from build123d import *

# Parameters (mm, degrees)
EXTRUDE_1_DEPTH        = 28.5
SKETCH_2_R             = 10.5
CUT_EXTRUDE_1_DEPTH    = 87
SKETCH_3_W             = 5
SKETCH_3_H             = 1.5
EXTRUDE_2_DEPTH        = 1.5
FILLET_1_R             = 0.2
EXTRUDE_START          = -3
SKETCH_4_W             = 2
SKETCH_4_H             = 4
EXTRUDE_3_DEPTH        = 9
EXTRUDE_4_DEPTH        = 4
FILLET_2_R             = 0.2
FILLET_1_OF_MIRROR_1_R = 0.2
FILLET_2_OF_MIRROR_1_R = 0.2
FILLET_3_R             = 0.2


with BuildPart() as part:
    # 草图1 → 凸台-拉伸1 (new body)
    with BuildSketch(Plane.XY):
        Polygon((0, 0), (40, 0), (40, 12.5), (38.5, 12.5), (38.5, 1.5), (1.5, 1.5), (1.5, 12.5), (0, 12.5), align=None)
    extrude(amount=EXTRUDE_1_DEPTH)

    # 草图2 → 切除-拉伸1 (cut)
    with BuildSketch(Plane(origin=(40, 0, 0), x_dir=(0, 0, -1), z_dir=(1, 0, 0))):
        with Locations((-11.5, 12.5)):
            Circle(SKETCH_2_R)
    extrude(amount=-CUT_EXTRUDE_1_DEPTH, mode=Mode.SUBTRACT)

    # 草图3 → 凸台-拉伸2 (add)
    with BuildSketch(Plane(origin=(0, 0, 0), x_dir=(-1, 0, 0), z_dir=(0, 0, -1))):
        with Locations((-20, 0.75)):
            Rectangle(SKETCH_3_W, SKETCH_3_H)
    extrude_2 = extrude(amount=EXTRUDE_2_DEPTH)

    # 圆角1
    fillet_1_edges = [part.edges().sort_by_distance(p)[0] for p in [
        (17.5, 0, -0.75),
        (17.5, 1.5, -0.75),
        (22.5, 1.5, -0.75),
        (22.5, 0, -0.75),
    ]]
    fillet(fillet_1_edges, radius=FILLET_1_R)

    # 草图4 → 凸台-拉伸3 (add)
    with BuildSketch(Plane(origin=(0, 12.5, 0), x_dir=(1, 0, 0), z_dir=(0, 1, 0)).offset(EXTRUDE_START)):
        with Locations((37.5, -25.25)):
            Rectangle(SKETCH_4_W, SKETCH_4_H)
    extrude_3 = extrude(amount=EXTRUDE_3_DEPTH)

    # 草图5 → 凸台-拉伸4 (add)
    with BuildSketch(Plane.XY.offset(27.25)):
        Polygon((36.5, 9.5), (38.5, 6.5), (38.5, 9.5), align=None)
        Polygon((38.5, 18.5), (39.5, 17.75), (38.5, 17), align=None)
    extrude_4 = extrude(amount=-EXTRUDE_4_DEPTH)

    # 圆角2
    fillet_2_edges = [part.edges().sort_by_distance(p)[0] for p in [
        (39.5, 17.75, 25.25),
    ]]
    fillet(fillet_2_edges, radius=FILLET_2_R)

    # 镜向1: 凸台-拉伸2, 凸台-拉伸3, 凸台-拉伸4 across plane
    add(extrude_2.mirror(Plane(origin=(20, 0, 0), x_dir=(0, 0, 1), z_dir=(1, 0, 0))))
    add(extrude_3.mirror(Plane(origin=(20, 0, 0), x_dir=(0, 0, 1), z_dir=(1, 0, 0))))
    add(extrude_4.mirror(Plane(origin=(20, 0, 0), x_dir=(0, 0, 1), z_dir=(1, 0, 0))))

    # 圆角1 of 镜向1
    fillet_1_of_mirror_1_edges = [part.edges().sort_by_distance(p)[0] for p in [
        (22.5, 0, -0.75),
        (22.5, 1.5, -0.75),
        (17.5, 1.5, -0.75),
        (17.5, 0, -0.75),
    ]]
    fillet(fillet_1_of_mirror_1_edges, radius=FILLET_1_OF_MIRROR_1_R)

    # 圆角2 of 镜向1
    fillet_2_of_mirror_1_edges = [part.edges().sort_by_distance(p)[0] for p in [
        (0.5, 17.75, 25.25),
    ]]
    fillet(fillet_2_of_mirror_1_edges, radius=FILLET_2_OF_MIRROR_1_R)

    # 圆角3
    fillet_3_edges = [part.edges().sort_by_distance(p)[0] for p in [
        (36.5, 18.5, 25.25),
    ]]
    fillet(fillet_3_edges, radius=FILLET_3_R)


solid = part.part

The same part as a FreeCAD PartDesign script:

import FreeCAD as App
import Part
import Sketcher

V = App.Vector
Q = App.Units.Quantity


def edges_at(feature, points):
    """Names of the edges that pass closest to the given points."""
    edges = feature.Shape.Edges
    near = lambda p: min(range(len(edges)), key=lambda i: edges[i].distToShape(Part.Vertex(*p))[0])
    return sorted({f"Edge{near(p) + 1}" for p in points})

doc = App.newDocument("Part")
body = doc.addObject("PartDesign::Body", "Body")

# Sketch on XY plane
sketch1 = body.newObject("Sketcher::SketchObject", "Sketch")
sketch1.AttachmentSupport = (doc.getObject("XY_Plane"), [""])
sketch1.MapMode = "FlatFace"
sketch1.addGeometry([
    Part.LineSegment(V(0, 0, 0), V(40, 0, 0)),  # 0
    Part.LineSegment(V(40, 0, 0), V(40, 12.5, 0)),  # 1
    Part.LineSegment(V(40, 12.5, 0), V(38.5, 12.5, 0)),  # 2
    Part.LineSegment(V(38.5, 12.5, 0), V(38.5, 1.5, 0)),  # 3
    Part.LineSegment(V(38.5, 1.5, 0), V(1.5, 1.5, 0)),  # 4
    Part.LineSegment(V(1.5, 1.5, 0), V(1.5, 12.5, 0)),  # 5
    Part.LineSegment(V(1.5, 12.5, 0), V(0, 12.5, 0)),  # 6
    Part.LineSegment(V(0, 12.5, 0), V(0, 0, 0)),  # 7
], False)
sketch1.addConstraint([
    Sketcher.Constraint("Coincident", 0, 2, 1, 1),
    Sketcher.Constraint("Coincident", 1, 2, 2, 1),
    Sketcher.Constraint("Coincident", 2, 2, 3, 1),
    Sketcher.Constraint("Coincident", 3, 2, 4, 1),
    Sketcher.Constraint("Coincident", 4, 2, 5, 1),
    Sketcher.Constraint("Coincident", 5, 2, 6, 1),
    Sketcher.Constraint("Coincident", 6, 2, 7, 1),
    Sketcher.Constraint("Coincident", 7, 2, 0, 1),
    Sketcher.Constraint("Horizontal", 0),
    Sketcher.Constraint("Vertical", 1),
    Sketcher.Constraint("Horizontal", 2),
    Sketcher.Constraint("Vertical", 3),
    Sketcher.Constraint("Horizontal", 4),
    Sketcher.Constraint("Vertical", 5),
    Sketcher.Constraint("Horizontal", 6),
    Sketcher.Constraint("Vertical", 7),
    Sketcher.Constraint("Coincident", 7, 2, -1, 1),
    Sketcher.Constraint("Horizontal", 2, 2, 5, 2),
    Sketcher.Constraint("Equal", 2, 6),
    Sketcher.Constraint("DistanceX", 0, 1, 0, 2, Q("40 mm")),
    Sketcher.Constraint("DistanceX", 4, 2, 4, 1, Q("37 mm")),
    Sketcher.Constraint("DistanceY", 3, 2, 3, 1, Q("11 mm")),
    Sketcher.Constraint("DistanceY", 1, 1, 1, 2, Q("12.5 mm")),
])
pad1 = body.newObject("PartDesign::Pad", "Pad")
pad1.Profile = sketch1
pad1.Length = 28.5

# Sketch on YZ plane
sketch2 = body.newObject("Sketcher::SketchObject", "Sketch001")
sketch2.AttachmentSupport = (doc.getObject("YZ_Plane"), [""])
sketch2.MapMode = "FlatFace"
sketch2.AttachmentOffset = App.Placement(V(0, 0, 40), App.Rotation())
sketch2.addGeometry(Part.Circle(V(12.5, 11.5, 0), V(0, 0, 1), 10.5), False)
sketch2.addConstraint([
    Sketcher.Constraint("Diameter", 0, Q("21 mm")),
    Sketcher.Constraint("DistanceX", -1, 1, 0, 3, Q("12.5 mm")),
    Sketcher.Constraint("DistanceY", -1, 1, 0, 3, Q("11.5 mm")),
])
pocket1 = body.newObject("PartDesign::Pocket", "Pocket")
pocket1.Profile = sketch2
pocket1.Length = 87

# Sketch on XY plane
sketch3 = body.newObject("Sketcher::SketchObject", "Sketch002")
sketch3.AttachmentSupport = (doc.getObject("XY_Plane"), [""])
sketch3.MapMode = "FlatFace"
sketch3.addGeometry([
    Part.LineSegment(V(22.5, 1.5, 0), V(22.5, 0, 0)),
    Part.LineSegment(V(22.5, 0, 0), V(17.5, 0, 0)),
    Part.LineSegment(V(17.5, 0, 0), V(17.5, 1.5, 0)),
    Part.LineSegment(V(17.5, 1.5, 0), V(22.5, 1.5, 0)),
], False)
sketch3.addConstraint([
    Sketcher.Constraint("Coincident", 0, 2, 1, 1),
    Sketcher.Constraint("Coincident", 1, 2, 2, 1),
    Sketcher.Constraint("Coincident", 2, 2, 3, 1),
    Sketcher.Constraint("Coincident", 3, 2, 0, 1),
    Sketcher.Constraint("Vertical", 0),
    Sketcher.Constraint("Horizontal", 1),
    Sketcher.Constraint("Vertical", 2),
    Sketcher.Constraint("Horizontal", 3),
    Sketcher.Constraint("PointOnObject", 0, 2, -1),
    Sketcher.Constraint("DistanceX", 1, 2, 1, 1, Q("5 mm")),
    Sketcher.Constraint("DistanceY", 0, 2, 0, 1, Q("1.5 mm")),
    Sketcher.Constraint("DistanceX", -1, 1, 0, 2, Q("22.5 mm")),
])
pad2 = body.newObject("PartDesign::Pad", "Pad001")
pad2.Profile = sketch3
pad2.Length = 1.5
pad2.Reversed = True
doc.recompute()

fillet = body.newObject("PartDesign::Fillet", "Fillet")
fillet.Base = (pad2, edges_at(pad2, [
    (17.5, 0, -0.75),
    (17.5, 1.5, -0.75),
    (22.5, 1.5, -0.75),
    (22.5, 0, -0.75),
]))
fillet.Radius = 0.2

# Sketch on XZ plane
sketch4 = body.newObject("Sketcher::SketchObject", "Sketch003")
sketch4.AttachmentSupport = (doc.getObject("XZ_Plane"), [""])
sketch4.MapMode = "FlatFace"
sketch4.AttachmentOffset = App.Placement(V(0, 0, -9.5), App.Rotation())
sketch4.addGeometry([
    Part.LineSegment(V(36.5, 23.25, 0), V(36.5, 27.25, 0)),
    Part.LineSegment(V(36.5, 27.25, 0), V(38.5, 27.25, 0)),
    Part.LineSegment(V(38.5, 27.25, 0), V(38.5, 23.25, 0)),
    Part.LineSegment(V(38.5, 23.25, 0), V(36.5, 23.25, 0)),
], False)
sketch4.addConstraint([
    Sketcher.Constraint("Coincident", 0, 2, 1, 1),
    Sketcher.Constraint("Coincident", 1, 2, 2, 1),
    Sketcher.Constraint("Coincident", 2, 2, 3, 1),
    Sketcher.Constraint("Coincident", 3, 2, 0, 1),
    Sketcher.Constraint("Vertical", 0),
    Sketcher.Constraint("Horizontal", 1),
    Sketcher.Constraint("Vertical", 2),
    Sketcher.Constraint("Horizontal", 3),
    Sketcher.Constraint("DistanceX", 1, 1, 1, 2, Q("2 mm")),
    Sketcher.Constraint("DistanceY", 0, 1, 0, 2, Q("4 mm")),
    Sketcher.Constraint("DistanceX", -1, 1, 0, 2, Q("36.5 mm")),
    Sketcher.Constraint("DistanceY", -1, 1, 0, 2, Q("27.25 mm")),
])
pad3 = body.newObject("PartDesign::Pad", "Pad002")
pad3.Profile = sketch4
pad3.Length = 9
pad3.Reversed = True

# Sketch on XY plane
sketch5 = body.newObject("Sketcher::SketchObject", "Sketch004")
sketch5.AttachmentSupport = (doc.getObject("XY_Plane"), [""])
sketch5.MapMode = "FlatFace"
sketch5.AttachmentOffset = App.Placement(V(0, 0, 27.25), App.Rotation())
sketch5.addGeometry([
    Part.LineSegment(V(36.5, 9.5, 0), V(38.5, 6.5, 0)),  # 0
    Part.LineSegment(V(38.5, 6.5, 0), V(38.5, 9.5, 0)),  # 1
    Part.LineSegment(V(38.5, 9.5, 0), V(36.5, 9.5, 0)),  # 2
    Part.LineSegment(V(39.5, 17.75, 0), V(38.5, 18.5, 0)),  # 3
    Part.LineSegment(V(38.5, 18.5, 0), V(38.5, 17, 0)),  # 4
    Part.LineSegment(V(38.5, 17, 0), V(39.5, 17.75, 0)),  # 5
], False)
sketch5.addConstraint([
    Sketcher.Constraint("Coincident", 0, 2, 1, 1),
    Sketcher.Constraint("Coincident", 1, 2, 2, 1),
    Sketcher.Constraint("Coincident", 2, 2, 0, 1),
    Sketcher.Constraint("Coincident", 3, 2, 4, 1),
    Sketcher.Constraint("Coincident", 4, 2, 5, 1),
    Sketcher.Constraint("Coincident", 5, 2, 3, 1),
    Sketcher.Constraint("Vertical", 1),
    Sketcher.Constraint("Horizontal", 2),
    Sketcher.Constraint("Vertical", 4),
    Sketcher.Constraint("Vertical", 1, 2, 3, 2),
    Sketcher.Constraint("Equal", 3, 5),
    Sketcher.Constraint("DistanceX", 2, 2, 2, 1, Q("2 mm")),
    Sketcher.Constraint("DistanceY", 1, 1, 1, 2, Q("3 mm")),
    Sketcher.Constraint("DistanceY", 4, 2, 4, 1, Q("1.5 mm")),
    Sketcher.Constraint("DistanceY", -1, 1, 4, 2, Q("17 mm")),
    Sketcher.Constraint("DistanceY", 1, 2, 3, 2, Q("9 mm")),
    Sketcher.Constraint("DistanceX", 3, 2, 5, 2, Q("1 mm")),
    Sketcher.Constraint("DistanceX", -1, 1, 0, 2, Q("38.5 mm")),
])
pad4 = body.newObject("PartDesign::Pad", "Pad003")
pad4.Profile = sketch5
pad4.Length = 4
pad4.Reversed = True
doc.recompute()

fillet2 = body.newObject("PartDesign::Fillet", "Fillet001")
fillet2.Base = (pad4, edges_at(pad4, [(39.5, 17.75, 25.25)]))
fillet2.Radius = 0.2
doc.recompute()

datumplane = body.newObject("PartDesign::Plane", "DatumPlane")
datumplane.AttachmentSupport = (doc.getObject("YZ_Plane"), [""])
datumplane.MapMode = "FlatFace"
datumplane.AttachmentOffset = App.Placement(V(0, 0, 20), App.Rotation())
mirrored = body.newObject("PartDesign::Mirrored", "Mirrored")
mirrored.Originals = [pad2, pad3, pad4]
mirrored.MirrorPlane = (datumplane, [""])
body.Tip = mirrored
doc.recompute()

fillet3 = body.newObject("PartDesign::Fillet", "Fillet002")
fillet3.Base = (mirrored, edges_at(mirrored, [
    (22.5, 0, -0.75),
    (22.5, 1.5, -0.75),
    (17.5, 1.5, -0.75),
    (17.5, 0, -0.75),
]))
fillet3.Radius = 0.2
doc.recompute()

fillet4 = body.newObject("PartDesign::Fillet", "Fillet003")
fillet4.Base = (fillet3, edges_at(fillet3, [(0.5, 17.75, 25.25)]))
fillet4.Radius = 0.2
doc.recompute()

fillet5 = body.newObject("PartDesign::Fillet", "Fillet004")
fillet5.Base = (fillet4, edges_at(fillet4, [(36.5, 18.5, 25.25)]))
fillet5.Radius = 0.2

doc.recompute()
